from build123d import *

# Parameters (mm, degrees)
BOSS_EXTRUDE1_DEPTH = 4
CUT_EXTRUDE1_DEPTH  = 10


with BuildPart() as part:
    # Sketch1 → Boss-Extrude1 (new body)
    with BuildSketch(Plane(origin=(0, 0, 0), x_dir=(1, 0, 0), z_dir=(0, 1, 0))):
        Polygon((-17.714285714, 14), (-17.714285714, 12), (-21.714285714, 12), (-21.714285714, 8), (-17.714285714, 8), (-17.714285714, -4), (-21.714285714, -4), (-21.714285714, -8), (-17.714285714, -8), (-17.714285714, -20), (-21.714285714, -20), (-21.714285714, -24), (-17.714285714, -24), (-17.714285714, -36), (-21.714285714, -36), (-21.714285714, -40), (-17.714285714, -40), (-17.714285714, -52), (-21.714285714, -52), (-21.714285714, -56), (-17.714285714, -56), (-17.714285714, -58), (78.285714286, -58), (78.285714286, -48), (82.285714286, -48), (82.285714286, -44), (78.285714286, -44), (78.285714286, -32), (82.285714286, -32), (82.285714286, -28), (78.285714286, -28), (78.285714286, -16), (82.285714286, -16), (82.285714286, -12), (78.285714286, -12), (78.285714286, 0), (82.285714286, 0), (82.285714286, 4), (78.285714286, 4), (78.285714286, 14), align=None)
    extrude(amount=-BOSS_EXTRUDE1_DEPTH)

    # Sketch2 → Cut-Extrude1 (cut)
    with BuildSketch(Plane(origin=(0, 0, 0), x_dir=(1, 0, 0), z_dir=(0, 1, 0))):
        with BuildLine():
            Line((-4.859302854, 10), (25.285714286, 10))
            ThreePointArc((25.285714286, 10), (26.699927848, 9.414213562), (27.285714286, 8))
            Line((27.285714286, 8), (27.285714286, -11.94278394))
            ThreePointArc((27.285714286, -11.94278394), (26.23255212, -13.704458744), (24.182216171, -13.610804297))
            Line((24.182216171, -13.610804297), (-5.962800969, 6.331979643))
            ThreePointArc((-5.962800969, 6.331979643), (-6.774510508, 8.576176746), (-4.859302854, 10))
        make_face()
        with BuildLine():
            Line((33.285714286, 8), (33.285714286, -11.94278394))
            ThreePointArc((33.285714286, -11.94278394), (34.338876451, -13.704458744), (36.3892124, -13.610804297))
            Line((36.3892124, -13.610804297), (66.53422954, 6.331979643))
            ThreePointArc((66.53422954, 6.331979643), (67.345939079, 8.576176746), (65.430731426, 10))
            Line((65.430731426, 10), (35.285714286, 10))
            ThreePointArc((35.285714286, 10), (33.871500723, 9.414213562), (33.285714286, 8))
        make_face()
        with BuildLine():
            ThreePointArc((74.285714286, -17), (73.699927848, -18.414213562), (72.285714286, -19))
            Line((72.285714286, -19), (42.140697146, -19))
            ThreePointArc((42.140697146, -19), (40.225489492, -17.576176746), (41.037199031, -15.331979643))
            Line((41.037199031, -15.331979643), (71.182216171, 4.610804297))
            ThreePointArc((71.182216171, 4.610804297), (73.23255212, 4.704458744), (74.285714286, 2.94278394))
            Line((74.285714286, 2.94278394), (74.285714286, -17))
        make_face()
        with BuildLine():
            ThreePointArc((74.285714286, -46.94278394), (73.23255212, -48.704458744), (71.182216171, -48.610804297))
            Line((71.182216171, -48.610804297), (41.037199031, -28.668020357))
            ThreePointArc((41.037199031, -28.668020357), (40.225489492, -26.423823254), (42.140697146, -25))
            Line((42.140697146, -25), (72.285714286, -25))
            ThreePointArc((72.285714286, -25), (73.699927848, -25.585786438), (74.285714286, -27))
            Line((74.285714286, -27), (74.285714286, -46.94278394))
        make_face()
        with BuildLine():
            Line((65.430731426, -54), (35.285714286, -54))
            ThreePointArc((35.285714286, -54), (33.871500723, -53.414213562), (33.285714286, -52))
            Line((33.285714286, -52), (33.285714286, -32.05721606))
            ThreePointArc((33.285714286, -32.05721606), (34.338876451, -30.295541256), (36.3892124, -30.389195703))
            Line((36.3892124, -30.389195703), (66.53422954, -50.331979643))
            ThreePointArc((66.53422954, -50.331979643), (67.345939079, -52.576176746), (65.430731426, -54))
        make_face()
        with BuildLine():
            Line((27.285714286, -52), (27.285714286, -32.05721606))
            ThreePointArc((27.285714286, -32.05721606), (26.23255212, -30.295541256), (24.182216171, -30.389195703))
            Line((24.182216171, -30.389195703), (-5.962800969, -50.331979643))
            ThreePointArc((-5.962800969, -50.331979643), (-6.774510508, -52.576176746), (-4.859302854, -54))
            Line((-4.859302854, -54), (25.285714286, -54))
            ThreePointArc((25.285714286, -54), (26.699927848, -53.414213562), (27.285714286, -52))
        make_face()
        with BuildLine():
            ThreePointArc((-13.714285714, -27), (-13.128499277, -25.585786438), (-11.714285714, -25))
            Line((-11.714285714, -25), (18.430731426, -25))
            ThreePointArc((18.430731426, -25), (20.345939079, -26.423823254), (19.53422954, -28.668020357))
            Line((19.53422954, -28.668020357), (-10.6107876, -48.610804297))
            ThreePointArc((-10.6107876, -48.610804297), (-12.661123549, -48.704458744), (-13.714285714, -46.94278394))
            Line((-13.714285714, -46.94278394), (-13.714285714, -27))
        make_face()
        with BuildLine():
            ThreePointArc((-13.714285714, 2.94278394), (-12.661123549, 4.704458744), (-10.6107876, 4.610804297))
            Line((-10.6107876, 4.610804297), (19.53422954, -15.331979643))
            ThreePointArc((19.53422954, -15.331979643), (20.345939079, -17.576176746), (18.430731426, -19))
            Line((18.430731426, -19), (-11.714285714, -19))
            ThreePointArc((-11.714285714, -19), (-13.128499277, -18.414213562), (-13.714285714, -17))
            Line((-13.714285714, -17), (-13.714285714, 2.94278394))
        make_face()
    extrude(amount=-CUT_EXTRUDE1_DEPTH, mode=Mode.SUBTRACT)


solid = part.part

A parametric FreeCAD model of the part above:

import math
import FreeCAD as App
import Part
import Sketcher

doc = App.newDocument("Part")
body = doc.addObject("PartDesign::Body", "Body")

sketch1 = body.newObject("Sketcher::SketchObject", "Sketch")
sketch1.AttachmentSupport = (doc.getObject("XZ_Plane"), [""])
sketch1.MapMode = "FlatFace"
sketch1.addGeometry([
    Part.LineSegment(App.Vector(-17.7, -14, 0), App.Vector(-17.7, -12, 0)),
    Part.LineSegment(App.Vector(-17.7, -12, 0), App.Vector(-21.7, -12, 0)),
    Part.LineSegment(App.Vector(-21.7, -12, 0), App.Vector(-21.7, -8, 0)),
    Part.LineSegment(App.Vector(-21.7, -8, 0), App.Vector(-17.7, -8, 0)),
    Part.LineSegment(App.Vector(-17.7, -8, 0), App.Vector(-17.7, 4, 0)),
    Part.LineSegment(App.Vector(-17.7, 4, 0), App.Vector(-21.7, 4, 0)),
    Part.LineSegment(App.Vector(-21.7, 4, 0), App.Vector(-21.7, 8, 0)),
    Part.LineSegment(App.Vector(-21.7, 8, 0), App.Vector(-17.7, 8, 0)),
    Part.LineSegment(App.Vector(-17.7, 8, 0), App.Vector(-17.7, 20, 0)),
    Part.LineSegment(App.Vector(-17.7, 20, 0), App.Vector(-21.7, 20, 0)),
    Part.LineSegment(App.Vector(-21.7, 20, 0), App.Vector(-21.7, 24, 0)),
    Part.LineSegment(App.Vector(-21.7, 24, 0), App.Vector(-17.7, 24, 0)),
    Part.LineSegment(App.Vector(-17.7, 24, 0), App.Vector(-17.7, 36, 0)),
    Part.LineSegment(App.Vector(-17.7, 36, 0), App.Vector(-21.7, 36, 0)),
    Part.LineSegment(App.Vector(-21.7, 36, 0), App.Vector(-21.7, 40, 0)),
    Part.LineSegment(App.Vector(-21.7, 40, 0), App.Vector(-17.7, 40, 0)),
    Part.LineSegment(App.Vector(-17.7, 40, 0), App.Vector(-17.7, 52, 0)),
    Part.LineSegment(App.Vector(-17.7, 52, 0), App.Vector(-21.7, 52, 0)),
    Part.LineSegment(App.Vector(-21.7, 52, 0), App.Vector(-21.7, 56, 0)),
    Part.LineSegment(App.Vector(-21.7, 56, 0), App.Vector(-17.7, 56, 0)),
    Part.LineSegment(App.Vector(-17.7, 56, 0), App.Vector(-17.7, 58, 0)),
    Part.LineSegment(App.Vector(-17.7, 58, 0), App.Vector(78.3, 58, 0)),
    Part.LineSegment(App.Vector(78.3, 58, 0), App.Vector(78.3, 48, 0)),
    Part.LineSegment(App.Vector(78.3, 48, 0), App.Vector(82.3, 48, 0)),
    Part.LineSegment(App.Vector(82.3, 48, 0), App.Vector(82.3, 44, 0)),
    Part.LineSegment(App.Vector(82.3, 44, 0), App.Vector(78.3, 44, 0)),
    Part.LineSegment(App.Vector(78.3, 44, 0), App.Vector(78.3, 32, 0)),
    Part.LineSegment(App.Vector(78.3, 32, 0), App.Vector(82.3, 32, 0)),
    Part.LineSegment(App.Vector(82.3, 32, 0), App.Vector(82.3, 28, 0)),
    Part.LineSegment(App.Vector(82.3, 28, 0), App.Vector(78.3, 28, 0)),
    Part.LineSegment(App.Vector(78.3, 28, 0), App.Vector(78.3, 16, 0)),
    Part.LineSegment(App.Vector(78.3, 16, 0), App.Vector(82.3, 16, 0)),
    Part.LineSegment(App.Vector(82.3, 16, 0), App.Vector(82.3, 12, 0)),
    Part.LineSegment(App.Vector(82.3, 12, 0), App.Vector(78.3, 12, 0)),
    Part.LineSegment(App.Vector(78.3, 12, 0), App.Vector(78.3, 0, 0)),
    Part.LineSegment(App.Vector(78.3, 0, 0), App.Vector(82.3, 0, 0)),
    Part.LineSegment(App.Vector(82.3, 0, 0), App.Vector(82.3, -4, 0)),
    Part.LineSegment(App.Vector(82.3, -4, 0), App.Vector(78.3, -4, 0)),
    Part.LineSegment(App.Vector(78.3, -4, 0), App.Vector(78.3, -14, 0)),
    Part.LineSegment(App.Vector(78.3, -14, 0), App.Vector(-17.7, -14, 0)),
], False)
sketch1.addConstraint([
    Sketcher.Constraint("Coincident", 0, 2, 1, 1),
    Sketcher.Constraint("Coincident", 1, 2, 2, 1),
    Sketcher.Constraint("Coincident", 2, 2, 3, 1),
    Sketcher.Constraint("Coincident", 3, 2, 4, 1),
    Sketcher.Constraint("Coincident", 4, 2, 5, 1),
    Sketcher.Constraint("Coincident", 5, 2, 6, 1),
    Sketcher.Constraint("Coincident", 6, 2, 7, 1),
    Sketcher.Constraint("Coincident", 7, 2, 8, 1),
    Sketcher.Constraint("Coincident", 8, 2, 9, 1),
    Sketcher.Constraint("Coincident", 9, 2, 10, 1),
    Sketcher.Constraint("Coincident", 10, 2, 11, 1),
    Sketcher.Constraint("Coincident", 11, 2, 12, 1),
    Sketcher.Constraint("Coincident", 12, 2, 13, 1),
    Sketcher.Constraint("Coincident", 13, 2, 14, 1),
    Sketcher.Constraint("Coincident", 14, 2, 15, 1),
    Sketcher.Constraint("Coincident", 15, 2, 16, 1),
    Sketcher.Constraint("Coincident", 16, 2, 17, 1),
    Sketcher.Constraint("Coincident", 17, 2, 18, 1),
    Sketcher.Constraint("Coincident", 18, 2, 19, 1),
    Sketcher.Constraint("Coincident", 19, 2, 20, 1),
    Sketcher.Constraint("Coincident", 20, 2, 21, 1),
    Sketcher.Constraint("Coincident", 21, 2, 22, 1),
    Sketcher.Constraint("Coincident", 22, 2, 23, 1),
    Sketcher.Constraint("Coincident", 23, 2, 24, 1),
    Sketcher.Constraint("Coincident", 24, 2, 25, 1),
    Sketcher.Constraint("Coincident", 25, 2, 26, 1),
    Sketcher.Constraint("Coincident", 26, 2, 27, 1),
    Sketcher.Constraint("Coincident", 27, 2, 28, 1),
    Sketcher.Constraint("Coincident", 28, 2, 29, 1),
    Sketcher.Constraint("Coincident", 29, 2, 30, 1),
    Sketcher.Constraint("Coincident", 30, 2, 31, 1),
    Sketcher.Constraint("Coincident", 31, 2, 32, 1),
    Sketcher.Constraint("Coincident", 32, 2, 33, 1),
    Sketcher.Constraint("Coincident", 33, 2, 34, 1),
    Sketcher.Constraint("Coincident", 34, 2, 35, 1),
    Sketcher.Constraint("Coincident", 35, 2, 36, 1),
    Sketcher.Constraint("Coincident", 36, 2, 37, 1),
    Sketcher.Constraint("Coincident", 37, 2, 38, 1),
    Sketcher.Constraint("Coincident", 38, 2, 39, 1),
    Sketcher.Constraint("Coincident", 39, 2, 0, 1),
    Sketcher.Constraint("Vertical", 0),
    Sketcher.Constraint("Horizontal", 1),
    Sketcher.Constraint("Vertical", 2),
    Sketcher.Constraint("Horizontal", 3),
    Sketcher.Constraint("Vertical", 4),
    Sketcher.Constraint("Horizontal", 5),
    Sketcher.Constraint("Vertical", 6),
    Sketcher.Constraint("Horizontal", 7),
    Sketcher.Constraint("Vertical", 8),
    Sketcher.Constraint("Horizontal", 9),
    Sketcher.Constraint("Vertical", 10),
    Sketcher.Constraint("Horizontal", 11),
    Sketcher.Constraint("Vertical", 12),
    Sketcher.Constraint("Horizontal", 13),
    Sketcher.Constraint("Vertical", 14),
    Sketcher.Constraint("Horizontal", 15),
    Sketcher.Constraint("Vertical", 16),
    Sketcher.Constraint("Horizontal", 17),
    Sketcher.Constraint("Vertical", 18),
    Sketcher.Constraint("Horizontal", 19),
    Sketcher.Constraint("Vertical", 20),
    Sketcher.Constraint("Horizontal", 21),
    Sketcher.Constraint("Vertical", 22),
    Sketcher.Constraint("Horizontal", 23),
    Sketcher.Constraint("Vertical", 24),
    Sketcher.Constraint("Horizontal", 25),
    Sketcher.Constraint("Vertical", 26),
    Sketcher.Constraint("Horizontal", 27),
    Sketcher.Constraint("Vertical", 28),
    Sketcher.Constraint("Horizontal", 29),
    Sketcher.Constraint("Vertical", 30),
    Sketcher.Constraint("Horizontal", 31),
    Sketcher.Constraint("Vertical", 32),
    Sketcher.Constraint("Horizontal", 33),
    Sketcher.Constraint("Vertical", 34),
    Sketcher.Constraint("Horizontal", 35),
    Sketcher.Constraint("Vertical", 36),
    Sketcher.Constraint("Horizontal", 37),
    Sketcher.Constraint("Vertical", 38),
    Sketcher.Constraint("Horizontal", 39),
    Sketcher.Constraint("Symmetric", 2, 2, 6, 2, -1),
    Sketcher.Constraint("PointOnObject", 34, 2, -1),
    Sketcher.Constraint("Vertical", 0, 2, 3, 2),
    Sketcher.Constraint("Vertical", 4, 2, 7, 2),
    Sketcher.Constraint("Vertical", 6, 2, 9, 2),
    Sketcher.Constraint("Vertical", 8, 2, 11, 2),
    Sketcher.Constraint("Vertical", 10, 2, 13, 2),
    Sketcher.Constraint("Vertical", 12, 2, 15, 2),
    Sketcher.Constraint("Vertical", 14, 2, 17, 2),
    Sketcher.Constraint("Vertical", 16, 2, 19, 2),
    Sketcher.Constraint("Vertical", 22, 2, 25, 2),
    Sketcher.Constraint("Vertical", 24, 2, 27, 2),
    Sketcher.Constraint("Vertical", 26, 2, 29, 2),
    Sketcher.Constraint("Vertical", 28, 2, 31, 2),
    Sketcher.Constraint("Vertical", 30, 2, 33, 2),
    Sketcher.Constraint("Vertical", 32, 2, 35, 2),
    Sketcher.Constraint("Vertical", 34, 2, 37, 2),
    Sketcher.Constraint("Equal", 19, 23),
    Sketcher.Constraint("Equal", 37, 2),
    Sketcher.Constraint("Equal", 2, 6),
    Sketcher.Constraint("Equal", 4, 8),
    Sketcher.Constraint("Equal", 6, 10),
    Sketcher.Constraint("Equal", 8, 12),
    Sketcher.Constraint("Equal", 10, 14),
    Sketcher.Constraint("Equal", 12, 16),
    Sketcher.Constraint("Equal", 14, 18),
    Sketcher.Constraint("Equal", 0, 20),
    Sketcher.Constraint("Equal", 18, 24),
    Sketcher.Constraint("Equal", 16, 26),
    Sketcher.Constraint("Equal", 24, 28),
    Sketcher.Constraint("Equal", 26, 30),
    Sketcher.Constraint("Equal", 28, 32),
    Sketcher.Constraint("Equal", 30, 34),
    Sketcher.Constraint("Equal", 32, 36),
    Sketcher.Constraint("DistanceX", 1, 2, 1, 1, 4.0),
    Sketcher.Constraint("DistanceX", 21, 1, 21, 2, 96.0),
    Sketcher.Constraint("DistanceY", 0, 1, 0, 2, 2.0),
    Sketcher.Constraint("DistanceY", 4, 1, 4, 2, 12.0),
    Sketcher.Constraint("DistanceX", 0, 2, -1, 1, 17.714286),
])
pad1 = body.newObject("PartDesign::Pad", "Pad")
pad1.Profile = sketch1
pad1.Length = 4

sketch2 = body.newObject("Sketcher::SketchObject", "Sketch001")
sketch2.AttachmentSupport = (doc.getObject("XZ_Plane"), [""])
sketch2.MapMode = "FlatFace"
sketch2.addGeometry([
    Part.LineSegment(App.Vector(25.3, -10, 0), App.Vector(-4.9, -10, 0)),
    Part.ArcOfCircle(Part.Circle(App.Vector(-4.9, -8, 0), App.Vector(0, 0, 1), 2), math.radians(123), math.radians(270)),
    Part.LineSegment(App.Vector(-6, -6.3, 0), App.Vector(24.2, 13.6, 0)),
    Part.ArcOfCircle(Part.Circle(App.Vector(25.3, 11.9, 0), App.Vector(0, 0, 1), 2), math.radians(0), math.radians(123)),
    Part.LineSegment(App.Vector(27.3, 11.9, 0), App.Vector(27.3, -8, 0)),
    Part.ArcOfCircle(Part.Circle(App.Vector(25.3, -8, 0), App.Vector(0, 0, 1), 2), math.radians(-90), math.radians(0)),
    Part.LineSegment(App.Vector(33.3, -8, 0), App.Vector(33.3, 11.9, 0)),
    Part.ArcOfCircle(Part.Circle(App.Vector(35.3, 11.9, 0), App.Vector(0, 0, 1), 2), math.radians(57), math.radians(180)),
    Part.LineSegment(App.Vector(36.4, 13.6, 0), App.Vector(66.5, -6.3, 0)),
    Part.ArcOfCircle(Part.Circle(App.Vector(65.4, -8, 0), App.Vector(0, 0, 1), 2), math.radians(-90), math.radians(57)),
    Part.LineSegment(App.Vector(65.4, -10, 0), App.Vector(35.3, -10, 0)),
    Part.ArcOfCircle(Part.Circle(App.Vector(35.3, -8, 0), App.Vector(0, 0, 1), 2), math.radians(180), math.radians(270)),
    Part.ArcOfCircle(Part.Circle(App.Vector(72.3, 17, 0), App.Vector(0, 0, 1), 2), math.radians(0), math.radians(90)),
    Part.LineSegment(App.Vector(74.3, 17, 0), App.Vector(74.3, -2.9, 0)),
    Part.ArcOfCircle(Part.Circle(App.Vector(72.3, -2.9, 0), App.Vector(0, 0, 1), 2), math.radians(-123), math.radians(0)),
    Part.LineSegment(App.Vector(71.2, -4.6, 0), App.Vector(41, 15.3, 0)),
    Part.ArcOfCircle(Part.Circle(App.Vector(42.1, 17, 0), App.Vector(0, 0, 1), 2), math.radians(90), math.radians(237)),
    Part.LineSegment(App.Vector(42.1, 19, 0), App.Vector(72.3, 19, 0)),
    Part.ArcOfCircle(Part.Circle(App.Vector(72.3, 46.9, 0), App.Vector(0, 0, 1), 2), math.radians(0), math.radians(123)),
    Part.LineSegment(App.Vector(74.3, 46.9, 0), App.Vector(74.3, 27, 0)),
    Part.ArcOfCircle(Part.Circle(App.Vector(72.3, 27, 0), App.Vector(0, 0, 1), 2), math.radians(-90), math.radians(0)),
    Part.LineSegment(App.Vector(72.3, 25, 0), App.Vector(42.1, 25, 0)),
    Part.ArcOfCircle(Part.Circle(App.Vector(42.1, 27, 0), App.Vector(0, 0, 1), 2), math.radians(123), math.radians(270)),
    Part.LineSegment(App.Vector(41, 28.7, 0), App.Vector(71.2, 48.6, 0)),
    Part.LineSegment(App.Vector(35.3, 54, 0), App.Vector(65.4, 54, 0)),
    Part.ArcOfCircle(Part.Circle(App.Vector(65.4, 52, 0), App.Vector(0, 0, 1), 2), math.radians(-57), math.radians(90)),
    Part.LineSegment(App.Vector(66.5, 50.3, 0), App.Vector(36.4, 30.4, 0)),
    Part.ArcOfCircle(Part.Circle(App.Vector(35.3, 32.1, 0), App.Vector(0, 0, 1), 2), math.radians(180), math.radians(303)),
    Part.LineSegment(App.Vector(33.3, 32.1, 0), App.Vector(33.3, 52, 0)),
    Part.ArcOfCircle(Part.Circle(App.Vector(35.3, 52, 0), App.Vector(0, 0, 1), 2), math.radians(90), math.radians(180)),
    Part.LineSegment(App.Vector(27.3, 52, 0), App.Vector(27.3, 32.1, 0)),
    Part.ArcOfCircle(Part.Circle(App.Vector(25.3, 32.1, 0), App.Vector(0, 0, 1), 2), math.radians(-123), math.radians(0)),
    Part.LineSegment(App.Vector(24.2, 30.4, 0), App.Vector(-6, 50.3, 0)),
    Part.ArcOfCircle(Part.Circle(App.Vector(-4.9, 52, 0), App.Vector(0, 0, 1), 2), math.radians(90), math.radians(237)),
    Part.LineSegment(App.Vector(-4.9, 54, 0), App.Vector(25.3, 54, 0)),
    Part.ArcOfCircle(Part.Circle(App.Vector(25.3, 52, 0), App.Vector(0, 0, 1), 2), math.radians(0), math.radians(90)),
    Part.ArcOfCircle(Part.Circle(App.Vector(-11.7, 27, 0), App.Vector(0, 0, 1), 2), math.radians(180), math.radians(270)),
    Part.LineSegment(App.Vector(-13.7, 27, 0), App.Vector(-13.7, 46.9, 0)),
    Part.ArcOfCircle(Part.Circle(App.Vector(-11.7, 46.9, 0), App.Vector(0, 0, 1), 2), math.radians(57), math.radians(180)),
    Part.LineSegment(App.Vector(-10.6, 48.6, 0), App.Vector(19.5, 28.7, 0)),
    Part.ArcOfCircle(Part.Circle(App.Vector(18.4, 27, 0), App.Vector(0, 0, 1), 2), math.radians(-90), math.radians(57)),
    Part.LineSegment(App.Vector(18.4, 25, 0), App.Vector(-11.7, 25, 0)),
    Part.ArcOfCircle(Part.Circle(App.Vector(-11.7, -2.9, 0), App.Vector(0, 0, 1), 2), math.radians(180), math.radians(303)),
    Part.LineSegment(App.Vector(-13.7, -2.9, 0), App.Vector(-13.7, 17, 0)),
    Part.ArcOfCircle(Part.Circle(App.Vector(-11.7, 17, 0), App.Vector(0, 0, 1), 2), math.radians(90), math.radians(180)),
    Part.LineSegment(App.Vector(-11.7, 19, 0), App.Vector(18.4, 19, 0)),
    Part.ArcOfCircle(Part.Circle(App.Vector(18.4, 17, 0), App.Vector(0, 0, 1), 2), math.radians(-57), math.radians(90)),
    Part.LineSegment(App.Vector(19.5, 15.3, 0), App.Vector(-10.6, -4.6, 0)),
], False)
sketch2.addConstraint([
    Sketcher.Constraint("Tangent", 0, 2, 1, 2),
    Sketcher.Constraint("Tangent", 1, 1, 2, 1),
    Sketcher.Constraint("Tangent", 2, 2, 3, 2),
    Sketcher.Constraint("Tangent", 3, 1, 4, 1),
    Sketcher.Constraint("Tangent", 4, 2, 5, 2),
    Sketcher.Constraint("Tangent", 5, 1, 0, 1),
    Sketcher.Constraint("Tangent", 6, 2, 7, 2),
    Sketcher.Constraint("Tangent", 7, 1, 8, 1),
    Sketcher.Constraint("Tangent", 8, 2, 9, 2),
    Sketcher.Constraint("Tangent", 9, 1, 10, 1),
    Sketcher.Constraint("Tangent", 10, 2, 11, 2),
    Sketcher.Constraint("Tangent", 11, 1, 6, 1),
    Sketcher.Constraint("Tangent", 12, 1, 13, 1),
    Sketcher.Constraint("Tangent", 13, 2, 14, 2),
    Sketcher.Constraint("Tangent", 14, 1, 15, 1),
    Sketcher.Constraint("Tangent", 15, 2, 16, 2),
    Sketcher.Constraint("Tangent", 16, 1, 17, 1),
    Sketcher.Constraint("Tangent", 17, 2, 12, 2),
    Sketcher.Constraint("Tangent", 18, 1, 19, 1),
    Sketcher.Constraint("Tangent", 19, 2, 20, 2),
    Sketcher.Constraint("Tangent", 20, 1, 21, 1),
    Sketcher.Constraint("Tangent", 21, 2, 22, 2),
    Sketcher.Constraint("Tangent", 22, 1, 23, 1),
    Sketcher.Constraint("Tangent", 23, 2, 18, 2),
    Sketcher.Constraint("Tangent", 24, 2, 25, 2),
    Sketcher.Constraint("Tangent", 25, 1, 26, 1),
    Sketcher.Constraint("Tangent", 26, 2, 27, 2),
    Sketcher.Constraint("Tangent", 27, 1, 28, 1),
    Sketcher.Constraint("Tangent", 28, 2, 29, 2),
    Sketcher.Constraint("Tangent", 29, 1, 24, 1),
    Sketcher.Constraint("Tangent", 30, 2, 31, 2),
    Sketcher.Constraint("Tangent", 31, 1, 32, 1),
    Sketcher.Constraint("Tangent", 32, 2, 33, 2),
    Sketcher.Constraint("Tangent", 33, 1, 34, 1),
    Sketcher.Constraint("Tangent", 34, 2, 35, 2),
    Sketcher.Constraint("Tangent", 35, 1, 30, 1),
    Sketcher.Constraint("Tangent", 36, 1, 37, 1),
    Sketcher.Constraint("Tangent", 37, 2, 38, 2),
    Sketcher.Constraint("Tangent", 38, 1, 39, 1),
    Sketcher.Constraint("Tangent", 39, 2, 40, 2),
    Sketcher.Constraint("Tangent", 40, 1, 41, 1),
    Sketcher.Constraint("Tangent", 41, 2, 36, 2),
    Sketcher.Constraint("Tangent", 42, 1, 43, 1),
    Sketcher.Constraint("Tangent", 43, 2, 44, 2),
    Sketcher.Constraint("Tangent", 44, 1, 45, 1),
    Sketcher.Constraint("Tangent", 45, 2, 46, 2),
    Sketcher.Constraint("Tangent", 46, 1, 47, 1),
    Sketcher.Constraint("Tangent", 47, 2, 42, 2),
    Sketcher.Constraint("Horizontal", 0),
    Sketcher.Constraint("Vertical", 4),
    Sketcher.Constraint("Vertical", 6),
    Sketcher.Constraint("Horizontal", 10),
    Sketcher.Constraint("Vertical", 13),
    Sketcher.Constraint("Horizontal", 17),
    Sketcher.Constraint("Vertical", 19),
    Sketcher.Constraint("Horizontal", 21),
    Sketcher.Constraint("Horizontal", 24),
    Sketcher.Constraint("Vertical", 28),
    Sketcher.Constraint("Vertical", 30),
    Sketcher.Constraint("Horizontal", 34),
    Sketcher.Constraint("Vertical", 37),
    Sketcher.Constraint("Horizontal", 41),
    Sketcher.Constraint("Vertical", 43),
    Sketcher.Constraint("Horizontal", 45),
    Sketcher.Constraint("Equal", 1, 3),
    Sketcher.Constraint("Equal", 3, 5),
    Sketcher.Constraint("Equal", 5, 7),
    Sketcher.Constraint("Equal", 7, 9),
    Sketcher.Constraint("Equal", 9, 11),
    Sketcher.Constraint("Equal", 11, 12),
    Sketcher.Constraint("Equal", 12, 14),
    Sketcher.Constraint("Equal", 14, 16),
    Sketcher.Constraint("Equal", 16, 18),
    Sketcher.Constraint("Equal", 18, 20),
    Sketcher.Constraint("Equal", 20, 22),
    Sketcher.Constraint("Equal", 22, 25),
    Sketcher.Constraint("Equal", 25, 27),
    Sketcher.Constraint("Equal", 27, 29),
    Sketcher.Constraint("Equal", 29, 31),
    Sketcher.Constraint("Equal", 31, 33),
    Sketcher.Constraint("Equal", 33, 35),
    Sketcher.Constraint("Equal", 35, 36),
    Sketcher.Constraint("Equal", 36, 38),
    Sketcher.Constraint("Equal", 38, 40),
    Sketcher.Constraint("Equal", 40, 42),
    Sketcher.Constraint("Equal", 42, 44),
    Sketcher.Constraint("Equal", 44, 46),
    Sketcher.Constraint("Parallel", 8, 15),
    Sketcher.Constraint("Parallel", 2, 23),
    Sketcher.Constraint("Parallel", 23, 26),
    Sketcher.Constraint("Parallel", 15, 32),
    Sketcher.Constraint("Parallel", 32, 39),
    Sketcher.Constraint("Parallel", 26, 47),
    Sketcher.Constraint("Horizontal", 3, 3, 7, 3),
    Sketcher.Constraint("Horizontal", 5, 3, 9, 3),
    Sketcher.Constraint("Horizontal", 27, 3, 31, 3),
    Sketcher.Constraint("Horizontal", 29, 3, 33, 3),
    Sketcher.Constraint("Horizontal", 22, 3, 36, 3),
    Sketcher.Constraint("Horizontal", 18, 3, 38, 3),
    Sketcher.Constraint("Horizontal", 14, 3, 42, 3),
    Sketcher.Constraint("Horizontal", 16, 3, 44, 3),
    Sketcher.Constraint("Horizontal", 2, 2, 7, 1),
    Sketcher.Constraint("Vertical", 14, 3, 18, 3),
    Sketcher.Constraint("Vertical", 16, 3, 22, 3),
    Sketcher.Constraint("Vertical", 9, 3, 25, 3),
    Sketcher.Constraint("Vertical", 11, 3, 27, 3),
    Sketcher.Constraint("Vertical", 5, 3, 31, 3),
    Sketcher.Constraint("Vertical", 38, 3, 42, 3),
    Sketcher.Constraint("Equal", 10, 17),
    Sketcher.Constraint("Radius", 1, 2.0),
    Sketcher.Constraint("DistanceY", 1, 3, -1, 1, 8.0),
    Sketcher.Constraint("DistanceY", -1, 1, 12, 3, 17.0),
    Sketcher.Constraint("DistanceY", -1, 1, 20, 3, 27.0),
    Sketcher.Constraint("DistanceY", -1, 1, 25, 3, 52.0),
    Sketcher.Constraint("DistanceX", 1, 1, -1, 1, 5.962801),
    Sketcher.Constraint("DistanceX", -1, 1, 15, 2, 41.037199),
    Sketcher.Constraint("DistanceX", 0, 2, 0, 1, 30.145017),
    Sketcher.Constraint("DistanceY", 4, 2, 4, 1, 19.942784),
    Sketcher.Constraint("DistanceX", -1, 1, 9, 3, 65.430731),
    Sketcher.Constraint("DistanceX", -1, 1, 40, 3, 18.430731),
])
pocket1 = body.newObject("PartDesign::Pocket", "Pocket")
pocket1.Profile = sketch2
pocket1.Length = 10
pocket1.Reversed = True

doc.recompute()
